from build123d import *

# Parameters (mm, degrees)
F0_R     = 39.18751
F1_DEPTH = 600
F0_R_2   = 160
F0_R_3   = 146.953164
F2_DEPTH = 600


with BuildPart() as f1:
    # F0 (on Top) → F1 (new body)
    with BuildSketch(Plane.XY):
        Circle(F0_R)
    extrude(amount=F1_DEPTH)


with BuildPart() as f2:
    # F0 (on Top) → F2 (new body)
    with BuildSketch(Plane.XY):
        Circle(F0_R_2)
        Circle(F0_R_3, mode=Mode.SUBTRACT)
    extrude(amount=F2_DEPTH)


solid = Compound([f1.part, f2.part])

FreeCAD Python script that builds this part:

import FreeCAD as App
import Part
import Sketcher

doc = App.newDocument("Part")
params = doc.addObject("Spreadsheet::Sheet", "Params")
for row, (alias, value) in enumerate([
    ("pad1_length", "600 mm"),
    ("sketch2_diameter", "320 mm"),
    ("pad2_length", "600 mm"),
], start=1):
    params.set(f"A{row}", alias)
    params.set(f"B{row}", "=" + value)
    params.setAlias(f"B{row}", alias)

body = doc.addObject("PartDesign::Body", "Body")

# Sketch on XY plane
sketch1 = body.newObject("Sketcher::SketchObject", "Sketch")
sketch1.AttachmentSupport = (doc.getObject("XY_Plane"), [""])
sketch1.MapMode = "FlatFace"
sketch1.addGeometry(Part.Circle(App.Vector(0, 0, 0), App.Vector(0, 0, 1), 39.18751), False)
sketch1.addConstraint([
    Sketcher.Constraint("Coincident", 0, 3, -1, 1),
    Sketcher.Constraint("Diameter", 0, 78.37502),
])
pad1 = body.newObject("PartDesign::Pad", "Pad")
pad1.Profile = sketch1
pad1.setExpression("Length", "Params.pad1_length")
body2 = doc.addObject("PartDesign::Body", "Body001")

# Sketch on XY plane
sketch2 = body2.newObject("Sketcher::SketchObject", "Sketch001")
sketch2.AttachmentSupport = (doc.getObject("XY_Plane001"), [""])
sketch2.MapMode = "FlatFace"
sketch2.addGeometry([
    Part.Circle(App.Vector(0, 0, 0), App.Vector(0, 0, 1), 160),
    Part.Circle(App.Vector(0, 0, 0), App.Vector(0, 0, 1), 146.953164),
], False)
sketch2.addConstraint([
    Sketcher.Constraint("Coincident", 0, 3, -1, 1),
    Sketcher.Constraint("Coincident", 1, 3, -1, 1),
    Sketcher.Constraint("Diameter", 0, 320.0),
    Sketcher.Constraint("Diameter", 1, 293.906328),
])
sketch2.setExpression("Constraints[2]", "Params.sketch2_diameter")
pad2 = body2.newObject("PartDesign::Pad", "Pad001")
pad2.Profile = sketch2
pad2.setExpression("Length", "Params.pad2_length")

doc.recompute()
